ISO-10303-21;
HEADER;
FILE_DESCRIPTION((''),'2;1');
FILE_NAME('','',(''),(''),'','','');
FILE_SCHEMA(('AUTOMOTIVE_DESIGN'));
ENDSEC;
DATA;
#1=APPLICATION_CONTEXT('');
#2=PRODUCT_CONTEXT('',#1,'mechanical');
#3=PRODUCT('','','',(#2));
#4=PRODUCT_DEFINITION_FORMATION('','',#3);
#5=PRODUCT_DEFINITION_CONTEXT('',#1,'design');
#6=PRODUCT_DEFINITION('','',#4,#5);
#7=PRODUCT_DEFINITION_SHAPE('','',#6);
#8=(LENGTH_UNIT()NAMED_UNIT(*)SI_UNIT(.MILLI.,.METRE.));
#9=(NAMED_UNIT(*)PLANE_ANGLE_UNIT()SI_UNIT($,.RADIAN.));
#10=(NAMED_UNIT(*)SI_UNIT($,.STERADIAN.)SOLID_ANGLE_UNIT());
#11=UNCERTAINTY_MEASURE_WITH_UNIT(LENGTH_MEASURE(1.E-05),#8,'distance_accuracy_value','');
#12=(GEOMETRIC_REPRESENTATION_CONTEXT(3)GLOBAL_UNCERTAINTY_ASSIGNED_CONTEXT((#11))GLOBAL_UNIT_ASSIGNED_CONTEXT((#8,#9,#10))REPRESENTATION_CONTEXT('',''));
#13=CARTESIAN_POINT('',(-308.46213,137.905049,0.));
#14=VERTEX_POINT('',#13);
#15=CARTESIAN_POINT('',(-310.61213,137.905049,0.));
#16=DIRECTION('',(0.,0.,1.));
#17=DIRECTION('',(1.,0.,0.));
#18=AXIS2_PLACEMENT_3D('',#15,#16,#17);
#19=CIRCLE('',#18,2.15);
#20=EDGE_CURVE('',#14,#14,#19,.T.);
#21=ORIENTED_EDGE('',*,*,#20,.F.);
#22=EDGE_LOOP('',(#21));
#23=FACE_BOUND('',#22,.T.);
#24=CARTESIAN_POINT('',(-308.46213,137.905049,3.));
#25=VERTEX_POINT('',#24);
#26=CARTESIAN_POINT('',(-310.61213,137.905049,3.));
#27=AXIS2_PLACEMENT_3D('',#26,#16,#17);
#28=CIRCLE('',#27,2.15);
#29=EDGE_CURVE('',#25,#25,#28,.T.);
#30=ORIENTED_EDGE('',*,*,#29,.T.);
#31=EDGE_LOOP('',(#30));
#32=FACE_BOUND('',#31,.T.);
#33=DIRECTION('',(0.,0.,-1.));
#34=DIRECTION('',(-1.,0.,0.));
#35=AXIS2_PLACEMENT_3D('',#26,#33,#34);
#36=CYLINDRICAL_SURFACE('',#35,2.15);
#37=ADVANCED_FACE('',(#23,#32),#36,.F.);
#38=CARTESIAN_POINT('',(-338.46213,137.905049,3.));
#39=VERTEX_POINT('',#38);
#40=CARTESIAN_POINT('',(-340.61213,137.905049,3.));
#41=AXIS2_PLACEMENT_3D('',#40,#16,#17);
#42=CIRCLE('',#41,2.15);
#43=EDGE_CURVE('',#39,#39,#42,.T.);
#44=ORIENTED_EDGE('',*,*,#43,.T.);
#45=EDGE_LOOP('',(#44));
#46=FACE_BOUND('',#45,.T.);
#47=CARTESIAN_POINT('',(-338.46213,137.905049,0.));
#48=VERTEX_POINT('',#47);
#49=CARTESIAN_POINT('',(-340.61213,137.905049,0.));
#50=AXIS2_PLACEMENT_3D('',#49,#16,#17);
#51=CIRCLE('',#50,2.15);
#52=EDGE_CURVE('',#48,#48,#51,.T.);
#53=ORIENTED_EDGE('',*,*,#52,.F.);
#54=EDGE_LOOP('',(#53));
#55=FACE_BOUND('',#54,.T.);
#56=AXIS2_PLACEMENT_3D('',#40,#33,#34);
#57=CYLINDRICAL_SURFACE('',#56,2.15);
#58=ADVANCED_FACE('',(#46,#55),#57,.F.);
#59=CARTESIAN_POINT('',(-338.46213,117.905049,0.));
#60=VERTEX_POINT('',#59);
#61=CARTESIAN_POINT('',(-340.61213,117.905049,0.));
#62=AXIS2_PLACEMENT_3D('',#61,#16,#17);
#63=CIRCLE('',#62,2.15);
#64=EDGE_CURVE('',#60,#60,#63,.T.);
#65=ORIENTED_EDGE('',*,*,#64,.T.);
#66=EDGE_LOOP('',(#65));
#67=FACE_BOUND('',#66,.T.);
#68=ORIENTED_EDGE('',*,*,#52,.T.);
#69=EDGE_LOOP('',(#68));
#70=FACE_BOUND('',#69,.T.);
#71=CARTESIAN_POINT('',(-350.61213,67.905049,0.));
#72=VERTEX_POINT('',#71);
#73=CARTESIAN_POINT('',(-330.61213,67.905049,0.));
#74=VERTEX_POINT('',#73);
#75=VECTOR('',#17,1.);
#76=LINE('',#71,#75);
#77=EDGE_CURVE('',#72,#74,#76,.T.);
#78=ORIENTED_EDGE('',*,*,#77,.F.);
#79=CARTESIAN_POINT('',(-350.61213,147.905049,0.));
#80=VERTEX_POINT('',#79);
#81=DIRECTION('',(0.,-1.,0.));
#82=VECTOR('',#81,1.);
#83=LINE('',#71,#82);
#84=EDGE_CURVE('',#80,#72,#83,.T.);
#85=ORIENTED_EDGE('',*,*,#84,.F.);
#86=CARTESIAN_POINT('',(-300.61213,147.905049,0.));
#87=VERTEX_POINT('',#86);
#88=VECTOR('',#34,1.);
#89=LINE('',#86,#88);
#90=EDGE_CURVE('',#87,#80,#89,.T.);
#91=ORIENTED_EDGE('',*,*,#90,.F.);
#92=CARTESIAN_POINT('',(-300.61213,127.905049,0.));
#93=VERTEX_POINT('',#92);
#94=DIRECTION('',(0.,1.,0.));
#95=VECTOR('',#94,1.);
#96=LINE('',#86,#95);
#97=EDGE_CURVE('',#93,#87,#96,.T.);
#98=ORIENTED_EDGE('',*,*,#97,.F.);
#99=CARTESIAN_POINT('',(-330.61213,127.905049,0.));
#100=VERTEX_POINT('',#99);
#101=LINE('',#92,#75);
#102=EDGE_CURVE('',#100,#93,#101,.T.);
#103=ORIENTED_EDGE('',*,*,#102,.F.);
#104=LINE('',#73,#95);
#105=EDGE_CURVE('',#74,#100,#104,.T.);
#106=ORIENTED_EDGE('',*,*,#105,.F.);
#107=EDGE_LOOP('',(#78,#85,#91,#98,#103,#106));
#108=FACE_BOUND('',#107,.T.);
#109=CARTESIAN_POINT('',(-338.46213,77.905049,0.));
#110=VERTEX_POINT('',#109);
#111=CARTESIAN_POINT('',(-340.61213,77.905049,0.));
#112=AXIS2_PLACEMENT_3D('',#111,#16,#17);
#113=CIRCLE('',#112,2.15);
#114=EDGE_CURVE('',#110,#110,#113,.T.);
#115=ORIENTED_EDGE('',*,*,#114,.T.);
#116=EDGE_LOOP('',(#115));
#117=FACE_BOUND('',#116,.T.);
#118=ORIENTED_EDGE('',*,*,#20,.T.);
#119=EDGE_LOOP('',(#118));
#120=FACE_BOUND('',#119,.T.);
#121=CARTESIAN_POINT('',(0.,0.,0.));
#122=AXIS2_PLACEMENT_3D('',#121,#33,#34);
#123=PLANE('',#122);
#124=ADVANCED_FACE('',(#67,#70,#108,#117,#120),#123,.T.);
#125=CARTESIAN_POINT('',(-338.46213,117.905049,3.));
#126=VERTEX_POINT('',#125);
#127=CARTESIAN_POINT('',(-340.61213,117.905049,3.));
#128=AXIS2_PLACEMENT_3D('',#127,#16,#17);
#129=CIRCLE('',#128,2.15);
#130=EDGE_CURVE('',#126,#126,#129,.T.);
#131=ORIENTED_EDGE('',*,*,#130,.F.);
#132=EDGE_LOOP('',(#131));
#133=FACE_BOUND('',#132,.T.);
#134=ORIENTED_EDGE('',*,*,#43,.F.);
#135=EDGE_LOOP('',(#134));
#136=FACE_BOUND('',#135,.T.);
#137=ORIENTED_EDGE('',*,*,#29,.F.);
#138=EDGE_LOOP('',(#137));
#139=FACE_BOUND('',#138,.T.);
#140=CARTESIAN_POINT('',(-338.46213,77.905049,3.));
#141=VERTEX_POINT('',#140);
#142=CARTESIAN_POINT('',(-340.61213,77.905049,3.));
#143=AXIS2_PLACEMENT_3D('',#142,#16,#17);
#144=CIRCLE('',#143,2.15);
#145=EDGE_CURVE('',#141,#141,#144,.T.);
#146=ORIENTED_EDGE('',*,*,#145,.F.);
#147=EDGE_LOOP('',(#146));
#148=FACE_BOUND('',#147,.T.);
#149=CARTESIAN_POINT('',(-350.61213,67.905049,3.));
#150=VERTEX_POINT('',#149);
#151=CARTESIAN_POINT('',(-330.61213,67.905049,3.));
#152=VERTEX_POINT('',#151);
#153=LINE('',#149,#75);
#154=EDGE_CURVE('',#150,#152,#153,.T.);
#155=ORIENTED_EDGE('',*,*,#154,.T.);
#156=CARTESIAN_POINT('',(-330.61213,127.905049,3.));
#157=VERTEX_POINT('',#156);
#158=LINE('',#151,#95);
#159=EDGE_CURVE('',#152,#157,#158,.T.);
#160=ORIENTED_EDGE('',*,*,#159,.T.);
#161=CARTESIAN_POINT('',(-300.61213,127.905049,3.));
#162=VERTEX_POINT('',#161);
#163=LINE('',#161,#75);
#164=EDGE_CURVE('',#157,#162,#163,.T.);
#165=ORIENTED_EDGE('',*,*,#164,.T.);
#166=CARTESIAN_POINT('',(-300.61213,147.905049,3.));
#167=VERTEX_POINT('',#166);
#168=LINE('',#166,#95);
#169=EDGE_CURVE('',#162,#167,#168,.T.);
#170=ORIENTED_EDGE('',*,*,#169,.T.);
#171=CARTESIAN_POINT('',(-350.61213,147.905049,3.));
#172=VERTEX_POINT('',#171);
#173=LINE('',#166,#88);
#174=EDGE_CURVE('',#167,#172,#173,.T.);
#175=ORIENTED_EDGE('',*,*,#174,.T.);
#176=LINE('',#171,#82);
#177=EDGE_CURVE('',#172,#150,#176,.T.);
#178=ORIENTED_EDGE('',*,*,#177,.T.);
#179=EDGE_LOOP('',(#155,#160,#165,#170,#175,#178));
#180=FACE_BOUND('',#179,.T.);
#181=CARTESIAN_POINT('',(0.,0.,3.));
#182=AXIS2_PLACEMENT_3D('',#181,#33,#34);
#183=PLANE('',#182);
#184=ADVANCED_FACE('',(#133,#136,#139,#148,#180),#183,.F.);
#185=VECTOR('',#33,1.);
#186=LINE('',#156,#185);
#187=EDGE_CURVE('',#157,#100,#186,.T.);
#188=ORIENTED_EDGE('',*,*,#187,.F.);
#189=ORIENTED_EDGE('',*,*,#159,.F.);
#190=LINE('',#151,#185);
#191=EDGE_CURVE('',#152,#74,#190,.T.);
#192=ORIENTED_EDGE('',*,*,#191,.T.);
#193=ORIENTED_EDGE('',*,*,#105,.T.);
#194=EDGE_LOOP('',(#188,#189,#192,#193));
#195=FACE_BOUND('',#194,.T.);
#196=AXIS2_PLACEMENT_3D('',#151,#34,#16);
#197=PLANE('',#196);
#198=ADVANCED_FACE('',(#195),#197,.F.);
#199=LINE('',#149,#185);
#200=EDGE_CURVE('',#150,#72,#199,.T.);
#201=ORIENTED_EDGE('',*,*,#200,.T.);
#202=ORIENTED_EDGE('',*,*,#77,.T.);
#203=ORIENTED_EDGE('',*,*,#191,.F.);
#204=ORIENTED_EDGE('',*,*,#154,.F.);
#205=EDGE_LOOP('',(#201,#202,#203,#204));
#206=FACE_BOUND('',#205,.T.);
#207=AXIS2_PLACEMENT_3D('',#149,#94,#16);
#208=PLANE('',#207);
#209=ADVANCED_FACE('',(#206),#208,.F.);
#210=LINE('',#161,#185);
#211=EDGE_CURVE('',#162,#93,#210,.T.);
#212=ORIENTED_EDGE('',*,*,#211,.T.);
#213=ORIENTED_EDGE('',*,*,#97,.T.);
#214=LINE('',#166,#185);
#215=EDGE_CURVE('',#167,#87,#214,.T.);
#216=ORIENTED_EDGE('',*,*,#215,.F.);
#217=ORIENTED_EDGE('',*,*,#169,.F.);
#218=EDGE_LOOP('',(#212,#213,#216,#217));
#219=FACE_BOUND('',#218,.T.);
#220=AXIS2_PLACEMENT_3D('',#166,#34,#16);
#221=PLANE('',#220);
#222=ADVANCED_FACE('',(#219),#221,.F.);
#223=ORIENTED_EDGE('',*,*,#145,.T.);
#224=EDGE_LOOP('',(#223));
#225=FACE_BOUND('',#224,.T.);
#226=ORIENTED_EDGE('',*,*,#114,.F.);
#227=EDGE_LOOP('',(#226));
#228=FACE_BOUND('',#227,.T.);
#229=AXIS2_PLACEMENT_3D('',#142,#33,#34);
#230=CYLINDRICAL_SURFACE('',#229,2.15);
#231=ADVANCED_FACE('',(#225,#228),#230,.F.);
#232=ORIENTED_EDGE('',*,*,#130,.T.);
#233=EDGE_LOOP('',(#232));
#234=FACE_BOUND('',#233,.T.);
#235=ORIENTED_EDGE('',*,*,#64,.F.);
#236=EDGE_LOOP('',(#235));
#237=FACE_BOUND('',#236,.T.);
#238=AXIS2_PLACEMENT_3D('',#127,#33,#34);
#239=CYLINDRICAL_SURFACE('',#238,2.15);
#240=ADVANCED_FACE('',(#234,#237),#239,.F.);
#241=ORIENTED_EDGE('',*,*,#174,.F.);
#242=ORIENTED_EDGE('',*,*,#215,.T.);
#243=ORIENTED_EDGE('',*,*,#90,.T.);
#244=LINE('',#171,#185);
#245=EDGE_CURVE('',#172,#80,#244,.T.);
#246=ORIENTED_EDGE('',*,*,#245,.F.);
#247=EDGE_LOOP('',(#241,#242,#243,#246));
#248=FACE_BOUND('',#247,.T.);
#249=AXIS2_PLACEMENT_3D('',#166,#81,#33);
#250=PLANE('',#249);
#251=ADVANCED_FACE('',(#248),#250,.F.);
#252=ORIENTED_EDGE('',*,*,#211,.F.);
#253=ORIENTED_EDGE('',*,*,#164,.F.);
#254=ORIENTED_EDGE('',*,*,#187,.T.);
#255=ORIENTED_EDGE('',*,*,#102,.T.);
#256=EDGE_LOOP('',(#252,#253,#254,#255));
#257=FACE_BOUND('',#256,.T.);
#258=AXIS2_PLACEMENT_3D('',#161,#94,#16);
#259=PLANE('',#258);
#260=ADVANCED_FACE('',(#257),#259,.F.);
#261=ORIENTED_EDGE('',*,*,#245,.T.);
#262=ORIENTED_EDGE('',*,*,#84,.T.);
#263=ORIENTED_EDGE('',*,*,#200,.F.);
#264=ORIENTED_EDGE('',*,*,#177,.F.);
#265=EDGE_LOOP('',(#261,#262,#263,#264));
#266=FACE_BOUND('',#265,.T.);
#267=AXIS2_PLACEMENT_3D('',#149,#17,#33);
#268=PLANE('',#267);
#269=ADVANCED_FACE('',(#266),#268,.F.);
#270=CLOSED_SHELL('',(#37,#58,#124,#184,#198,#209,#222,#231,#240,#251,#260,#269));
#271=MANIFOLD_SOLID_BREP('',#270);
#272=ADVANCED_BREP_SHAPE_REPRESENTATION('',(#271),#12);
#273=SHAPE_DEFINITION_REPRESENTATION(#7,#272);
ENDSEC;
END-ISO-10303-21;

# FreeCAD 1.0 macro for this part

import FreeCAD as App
import Part
import Sketcher


def add_polygon(sketch, points):
    """Adds a closed chain of lines whose ends are joined by coincident constraints."""
    first, n = sketch.GeometryCount, len(points)
    for a, b in zip(points, points[1:] + points[:1]):
        sketch.addGeometry(Part.LineSegment(App.Vector(*a, 0), App.Vector(*b, 0)), False)
    for i in range(n):
        sketch.addConstraint(Sketcher.Constraint("Coincident", first + i, 2, first + (i + 1) % n, 1))

doc = App.newDocument("Part")
params = doc.addObject("Spreadsheet::Sheet", "Params")
for row, (alias, value) in enumerate([
    ("sketch1_diameter", "4.3 mm"),
    ("sketch1_width", "50 mm"),
    ("sketch1_width2", "20 mm"),
    ("sketch1_height", "80 mm"),
    ("pad1_length", "3 mm"),
], start=1):
    params.set(f"A{row}", alias)
    params.set(f"B{row}", "=" + value)
    params.setAlias(f"B{row}", alias)

body = doc.addObject("PartDesign::Body", "Body")

# Sketch on XY plane
sketch1 = doc.addObject("Sketcher::SketchObject", "Sketch")
body.addObject(sketch1)
sketch1.AttachmentSupport = (doc.XY_Plane, [""])
sketch1.MapMode = "FlatFace"
add_polygon(sketch1, [(-300.61213, 147.905049), (-350.61213, 147.905049), (-350.61213, 67.905049), (-330.61213, 67.905049), (-330.61213, 127.905049), (-300.61213, 127.905049)])  # lines 0-5
sketch1.addGeometry(Part.Circle(App.Vector(-340.61213, 77.905049, 0), App.Vector(0, 0, 1), 2.15), False)  # 6
sketch1.addGeometry(Part.Circle(App.Vector(-340.61213, 117.905049, 0), App.Vector(0, 0, 1), 2.15), False)  # 7
sketch1.addGeometry(Part.Circle(App.Vector(-340.61213, 137.905049, 0), App.Vector(0, 0, 1), 2.15), False)  # 8
sketch1.addGeometry(Part.Circle(App.Vector(-310.61213, 137.905049, 0), App.Vector(0, 0, 1), 2.15), False)  # 9
sketch1.addConstraint(Sketcher.Constraint("Horizontal", 0))
sketch1.addConstraint(Sketcher.Constraint("Vertical", 1))
sketch1.addConstraint(Sketcher.Constraint("Horizontal", 2))
sketch1.addConstraint(Sketcher.Constraint("Vertical", 3))
sketch1.addConstraint(Sketcher.Constraint("Horizontal", 4))
sketch1.addConstraint(Sketcher.Constraint("Vertical", 5))
sketch1.addConstraint(Sketcher.Constraint("Equal", 6, 7))
sketch1.addConstraint(Sketcher.Constraint("Equal", 7, 8))
sketch1.addConstraint(Sketcher.Constraint("Equal", 8, 9))
sketch1.addConstraint(Sketcher.Constraint("Horizontal", 8, 3, 9, 3))
sketch1.addConstraint(Sketcher.Constraint("Vertical", 6, 3, 7, 3))
sketch1.addConstraint(Sketcher.Constraint("Vertical", 7, 3, 8, 3))
sketch1.addConstraint(Sketcher.Constraint("Equal", 2, 5))
sketch1.addConstraint(Sketcher.Constraint("Diameter", 6, 4.3))
sketch1.addConstraint(Sketcher.Constraint("DistanceX", 0, 2, 0, 1, 50.0))
sketch1.addConstraint(Sketcher.Constraint("DistanceX", 2, 1, 2, 2, 20.0))
sketch1.addConstraint(Sketcher.Constraint("DistanceY", 1, 2, 1, 1, 80.0))
sketch1.addConstraint(Sketcher.Constraint("DistanceY", 6, 3, 7, 3, 40.0))
sketch1.addConstraint(Sketcher.Constraint("DistanceY", 7, 3, 8, 3, 20.0))
sketch1.addConstraint(Sketcher.Constraint("DistanceX", 8, 3, 9, 3, 30.0))
sketch1.addConstraint(Sketcher.Constraint("DistanceX", 0, 2, 8, 3, 10.0))
sketch1.addConstraint(Sketcher.Constraint("DistanceY", 8, 3, 0, 2, 10.0))
sketch1.addConstraint(Sketcher.Constraint("DistanceX", 6, 3, -1, 1, 340.61213))
sketch1.addConstraint(Sketcher.Constraint("DistanceY", -1, 1, 6, 3, 77.905049))
sketch1.setExpression("Constraints[19]", "Params.sketch1_diameter")
sketch1.setExpression("Constraints[20]", "Params.sketch1_width")
sketch1.setExpression("Constraints[21]", "Params.sketch1_width2")
sketch1.setExpression("Constraints[22]", "Params.sketch1_height")
pad1 = doc.addObject("PartDesign::Pad", "Pad")
body.addObject(pad1)
pad1.Profile = sketch1
pad1.setExpression("Length", "Params.pad1_length")

doc.recompute()
